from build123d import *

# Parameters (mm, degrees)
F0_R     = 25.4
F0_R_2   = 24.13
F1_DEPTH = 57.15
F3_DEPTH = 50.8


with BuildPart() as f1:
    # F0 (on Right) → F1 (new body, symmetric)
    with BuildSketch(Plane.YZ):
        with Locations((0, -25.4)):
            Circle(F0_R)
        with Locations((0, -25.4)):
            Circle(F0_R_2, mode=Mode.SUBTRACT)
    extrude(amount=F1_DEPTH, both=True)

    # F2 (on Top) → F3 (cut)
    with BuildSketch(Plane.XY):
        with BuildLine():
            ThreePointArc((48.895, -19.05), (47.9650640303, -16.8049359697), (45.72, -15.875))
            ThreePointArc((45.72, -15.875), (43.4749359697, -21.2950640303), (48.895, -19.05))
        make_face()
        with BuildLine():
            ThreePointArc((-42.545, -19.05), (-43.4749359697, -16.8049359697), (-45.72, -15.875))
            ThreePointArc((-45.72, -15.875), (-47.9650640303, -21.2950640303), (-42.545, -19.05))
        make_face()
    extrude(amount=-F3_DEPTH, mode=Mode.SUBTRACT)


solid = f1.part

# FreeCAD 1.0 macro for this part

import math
import FreeCAD as App
import Part
import Sketcher
from FreeCAD import Vector
Q = App.Units.Quantity

doc = App.newDocument("Part")
body = doc.addObject("PartDesign::Body", "Body")

# Sketch on YZ plane
sketch1 = doc.addObject("Sketcher::SketchObject", "Sketch")
body.addObject(sketch1)
sketch1.AttachmentSupport = (doc.YZ_Plane, [""])
sketch1.MapMode = "FlatFace"
sketch1.addGeometry([
    Part.Circle(Vector(0, -25, 0), Vector(0, 0, 1), 25),
    Part.Circle(Vector(0, -25, 0), Vector(0, 0, 1), 24),
], False)
sketch1.addConstraint([
    Sketcher.Constraint("Coincident", 1, 3, 0, 3),
    Sketcher.Constraint("PointOnObject", 0, 3, -2),
    Sketcher.Constraint("Diameter", 0, Q("2 in")),
    Sketcher.Constraint("Diameter", 1, Q("1.9 in")),
    Sketcher.Constraint("DistanceY", 0, 3, -1, 1, Q("1 in")),
])
pad1 = doc.addObject("PartDesign::Pad", "Pad")
body.addObject(pad1)
pad1.Profile = sketch1
pad1.Length = Q("4.5 in")
pad1.Midplane = True

# Sketch on XY plane
sketch2 = doc.addObject("Sketcher::SketchObject", "Sketch001")
body.addObject(sketch2)
sketch2.AttachmentSupport = (doc.XY_Plane, [""])
sketch2.MapMode = "FlatFace"
sketch2.addGeometry([
    Part.ArcOfCircle(Part.Circle(Vector(45.7, -19.1, 0), Vector(0, 0, 1), 3.2), math.radians(0), math.radians(90)),
    Part.ArcOfCircle(Part.Circle(Vector(45.7, -19.1, 0), Vector(0, 0, 1), 3.2), math.radians(90), math.radians(360)),
    Part.ArcOfCircle(Part.Circle(Vector(-45.7, -19.1, 0), Vector(0, 0, 1), 3.2), math.radians(0), math.radians(90)),
    Part.ArcOfCircle(Part.Circle(Vector(-45.7, -19.1, 0), Vector(0, 0, 1), 3.2), math.radians(90), math.radians(360)),
], False)
sketch2.addConstraint([
    Sketcher.Constraint("Tangent", 0, 1, 1, 2),
    Sketcher.Constraint("Coincident", 1, 1, 0, 2),
    Sketcher.Constraint("Tangent", 2, 1, 3, 2),
    Sketcher.Constraint("Coincident", 3, 1, 2, 2),
    Sketcher.Constraint("Equal", 1, 2),
    Sketcher.Constraint("Symmetric", 0, 3, 2, 3, -2),
    Sketcher.Constraint("Horizontal", 3, 3, 0, 1),
    Sketcher.Constraint("Horizontal", 0, 1, 2, 1),
    Sketcher.Constraint("Vertical", 0, 3, 1, 1),
    Sketcher.Constraint("Vertical", 2, 3, 3, 1),
    Sketcher.Constraint("Radius", 0, Q("0.125 in")),
    Sketcher.Constraint("DistanceX", -1, 1, 0, 3, Q("1.8 in")),
    Sketcher.Constraint("DistanceY", 0, 3, -1, 1, Q("0.75 in")),
])
pocket1 = doc.addObject("PartDesign::Pocket", "Pocket")
body.addObject(pocket1)
pocket1.Profile = sketch2
pocket1.Length = Q("2 in")

doc.recompute()
